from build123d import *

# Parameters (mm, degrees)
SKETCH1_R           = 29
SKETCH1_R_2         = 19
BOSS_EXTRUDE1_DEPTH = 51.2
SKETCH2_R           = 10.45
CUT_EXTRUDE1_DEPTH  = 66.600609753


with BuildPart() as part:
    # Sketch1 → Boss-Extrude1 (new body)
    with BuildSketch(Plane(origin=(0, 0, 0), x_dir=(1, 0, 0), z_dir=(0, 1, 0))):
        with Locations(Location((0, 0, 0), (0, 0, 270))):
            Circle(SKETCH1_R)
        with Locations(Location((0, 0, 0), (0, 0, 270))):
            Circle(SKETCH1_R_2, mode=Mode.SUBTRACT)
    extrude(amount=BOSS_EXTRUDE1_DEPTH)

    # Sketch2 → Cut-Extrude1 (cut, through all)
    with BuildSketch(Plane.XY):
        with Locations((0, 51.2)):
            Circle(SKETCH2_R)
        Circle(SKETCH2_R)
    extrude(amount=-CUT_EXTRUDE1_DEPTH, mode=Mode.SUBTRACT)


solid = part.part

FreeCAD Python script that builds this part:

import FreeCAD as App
import Part
import Sketcher
from FreeCAD import Vector

doc = App.newDocument("Part")
body = doc.addObject("PartDesign::Body", "Body")

# Sketch on XZ plane
sketch1 = body.newObject("Sketcher::SketchObject", "Sketch")
sketch1.AttachmentSupport = (doc.getObject("XZ_Plane"), [""])
sketch1.MapMode = "FlatFace"
sketch1.addGeometry([
    Part.Circle(Vector(0, 0, 0), Vector(0, 0, 1), 29),
    Part.Circle(Vector(0, 0, 0), Vector(0, 0, 1), 19),
], False)
sketch1.addConstraint([
    Sketcher.Constraint("Coincident", 0, 3, -1, 1),
    Sketcher.Constraint("Coincident", 1, 3, -1, 1),
    Sketcher.Constraint("Diameter", 0, 58.0),
    Sketcher.Constraint("Diameter", 1, 38.0),
])
pad1 = body.newObject("PartDesign::Pad", "Pad")
pad1.Profile = sketch1
pad1.Length = 51.2
pad1.Reversed = True

# Sketch on XY plane
sketch2 = body.newObject("Sketcher::SketchObject", "Sketch001")
sketch2.AttachmentSupport = (doc.getObject("XY_Plane"), [""])
sketch2.MapMode = "FlatFace"
sketch2.addGeometry([
    Part.Circle(Vector(0, 51, 0), Vector(0, 0, 1), 10),
    Part.Circle(Vector(0, 0, 0), Vector(0, 0, 1), 10),
], False)
sketch2.addConstraint([
    Sketcher.Constraint("Coincident", 1, 3, -1, 1),
    Sketcher.Constraint("Equal", 0, 1),
    Sketcher.Constraint("PointOnObject", 0, 3, -2),
    Sketcher.Constraint("Diameter", 0, 20.9),
    Sketcher.Constraint("DistanceY", -1, 1, 0, 3, 51.2),
])
pocket1 = body.newObject("PartDesign::Pocket", "Pocket")
pocket1.Profile = sketch2
pocket1.Type = "ThroughAll"

doc.recompute()
